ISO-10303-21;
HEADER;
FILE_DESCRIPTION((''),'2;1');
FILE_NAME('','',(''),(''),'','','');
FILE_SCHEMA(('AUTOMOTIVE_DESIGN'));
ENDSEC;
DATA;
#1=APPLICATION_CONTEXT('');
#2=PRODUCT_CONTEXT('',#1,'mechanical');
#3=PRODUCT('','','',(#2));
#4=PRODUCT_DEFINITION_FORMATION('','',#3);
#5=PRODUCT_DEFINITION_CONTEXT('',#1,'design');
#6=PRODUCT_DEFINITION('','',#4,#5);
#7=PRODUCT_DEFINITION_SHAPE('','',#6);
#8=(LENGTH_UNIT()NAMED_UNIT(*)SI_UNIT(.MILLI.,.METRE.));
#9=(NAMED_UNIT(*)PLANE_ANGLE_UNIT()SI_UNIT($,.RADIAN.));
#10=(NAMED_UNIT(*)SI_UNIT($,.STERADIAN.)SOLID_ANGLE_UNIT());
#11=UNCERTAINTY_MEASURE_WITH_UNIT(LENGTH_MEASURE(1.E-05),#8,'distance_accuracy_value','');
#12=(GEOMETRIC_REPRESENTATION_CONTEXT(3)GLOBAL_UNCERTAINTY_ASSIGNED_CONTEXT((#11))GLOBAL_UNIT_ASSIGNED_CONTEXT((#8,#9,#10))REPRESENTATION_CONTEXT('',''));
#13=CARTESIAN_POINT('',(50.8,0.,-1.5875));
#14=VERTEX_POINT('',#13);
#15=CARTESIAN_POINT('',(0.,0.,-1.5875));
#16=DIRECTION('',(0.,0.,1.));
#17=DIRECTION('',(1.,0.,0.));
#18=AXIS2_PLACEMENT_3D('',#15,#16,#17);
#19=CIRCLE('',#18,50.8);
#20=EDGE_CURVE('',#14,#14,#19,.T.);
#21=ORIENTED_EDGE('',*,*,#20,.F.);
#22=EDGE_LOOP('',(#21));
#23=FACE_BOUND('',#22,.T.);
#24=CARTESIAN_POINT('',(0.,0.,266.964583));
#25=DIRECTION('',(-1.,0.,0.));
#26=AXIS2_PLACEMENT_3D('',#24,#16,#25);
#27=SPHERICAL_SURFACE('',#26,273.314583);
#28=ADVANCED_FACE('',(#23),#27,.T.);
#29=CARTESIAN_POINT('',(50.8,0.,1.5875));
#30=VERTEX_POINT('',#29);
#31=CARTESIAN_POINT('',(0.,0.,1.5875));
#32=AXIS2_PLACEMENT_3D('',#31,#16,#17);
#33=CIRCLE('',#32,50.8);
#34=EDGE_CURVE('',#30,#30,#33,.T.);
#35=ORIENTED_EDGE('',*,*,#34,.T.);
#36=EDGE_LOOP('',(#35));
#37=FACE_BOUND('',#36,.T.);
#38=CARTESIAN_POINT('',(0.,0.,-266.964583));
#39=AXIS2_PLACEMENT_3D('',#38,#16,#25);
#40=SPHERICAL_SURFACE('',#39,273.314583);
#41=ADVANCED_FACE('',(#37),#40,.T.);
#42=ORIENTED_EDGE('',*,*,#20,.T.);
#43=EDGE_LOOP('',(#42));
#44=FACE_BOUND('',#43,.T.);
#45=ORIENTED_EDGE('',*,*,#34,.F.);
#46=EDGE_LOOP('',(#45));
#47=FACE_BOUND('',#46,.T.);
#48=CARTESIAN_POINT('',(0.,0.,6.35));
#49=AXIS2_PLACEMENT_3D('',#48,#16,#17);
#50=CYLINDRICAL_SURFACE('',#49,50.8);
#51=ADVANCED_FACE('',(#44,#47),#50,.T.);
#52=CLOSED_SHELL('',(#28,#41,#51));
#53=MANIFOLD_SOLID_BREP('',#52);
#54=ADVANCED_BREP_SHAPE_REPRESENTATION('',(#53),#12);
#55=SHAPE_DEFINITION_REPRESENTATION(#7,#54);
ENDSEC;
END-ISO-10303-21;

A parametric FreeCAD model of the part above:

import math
import FreeCAD as App
import Part
import Sketcher

V = App.Vector
Q = App.Units.Quantity

doc = App.newDocument("Part")
body = doc.addObject("PartDesign::Body", "Body")

sketch1 = body.newObject("Sketcher::SketchObject", "Sketch")
sketch1.AttachmentSupport = (doc.getObject("XZ_Plane"), [""])
sketch1.MapMode = "FlatFace"
sketch1.addGeometry(Part.ArcOfCircle(Part.Circle(V(0, -267, 0), V(0, 0, 1), 273.3), math.radians(79.29), math.radians(90)), False)
sketch1.addGeometry(Part.LineSegment(V(50.8, 1.6, 0), V(50.8, -1.6, 0)), False)
sketch1.addGeometry(Part.ArcOfCircle(Part.Circle(V(0, 267, 0), V(0, 0, 1), 273.3), math.radians(-90), math.radians(-79.29)), False)
sketch1.addGeometry(Part.LineSegment(V(0, -6.3, 0), V(0, 6.3, 0)), False)
sketch1.addConstraint(Sketcher.Constraint("Coincident", 0, 1, 1, 1))
sketch1.addConstraint(Sketcher.Constraint("Coincident", 1, 2, 2, 2))
sketch1.addConstraint(Sketcher.Constraint("Coincident", 2, 1, 3, 1))
sketch1.addConstraint(Sketcher.Constraint("Coincident", 3, 2, 0, 2))
sketch1.addConstraint(Sketcher.Constraint("Vertical", 1))
sketch1.addConstraint(Sketcher.Constraint("Vertical", 3))
sketch1.addConstraint(Sketcher.Constraint("Equal", 0, 2))
sketch1.addConstraint(Sketcher.Constraint("Symmetric", 0, 3, 2, 3, -1, 1))
sketch1.addConstraint(Sketcher.Constraint("PointOnObject", 0, 3, -2))
sketch1.addConstraint(Sketcher.Constraint("PointOnObject", 2, 1, -2))
sketch1.addConstraint(Sketcher.Constraint("DistanceY", 3, 1, 3, 2, Q("0.5 in")))
sketch1.addConstraint(Sketcher.Constraint("DistanceX", -1, 1, 0, 1, Q("2 in")))
sketch1.addConstraint(Sketcher.Constraint("DistanceY", 1, 2, 1, 1, Q("0.125 in")))
revolution = body.newObject("PartDesign::Revolution", "Revolution")
revolution.Profile = sketch1
revolution.ReferenceAxis = (sketch1, ["V_Axis"])
revolution.Angle = 360

doc.recompute()
